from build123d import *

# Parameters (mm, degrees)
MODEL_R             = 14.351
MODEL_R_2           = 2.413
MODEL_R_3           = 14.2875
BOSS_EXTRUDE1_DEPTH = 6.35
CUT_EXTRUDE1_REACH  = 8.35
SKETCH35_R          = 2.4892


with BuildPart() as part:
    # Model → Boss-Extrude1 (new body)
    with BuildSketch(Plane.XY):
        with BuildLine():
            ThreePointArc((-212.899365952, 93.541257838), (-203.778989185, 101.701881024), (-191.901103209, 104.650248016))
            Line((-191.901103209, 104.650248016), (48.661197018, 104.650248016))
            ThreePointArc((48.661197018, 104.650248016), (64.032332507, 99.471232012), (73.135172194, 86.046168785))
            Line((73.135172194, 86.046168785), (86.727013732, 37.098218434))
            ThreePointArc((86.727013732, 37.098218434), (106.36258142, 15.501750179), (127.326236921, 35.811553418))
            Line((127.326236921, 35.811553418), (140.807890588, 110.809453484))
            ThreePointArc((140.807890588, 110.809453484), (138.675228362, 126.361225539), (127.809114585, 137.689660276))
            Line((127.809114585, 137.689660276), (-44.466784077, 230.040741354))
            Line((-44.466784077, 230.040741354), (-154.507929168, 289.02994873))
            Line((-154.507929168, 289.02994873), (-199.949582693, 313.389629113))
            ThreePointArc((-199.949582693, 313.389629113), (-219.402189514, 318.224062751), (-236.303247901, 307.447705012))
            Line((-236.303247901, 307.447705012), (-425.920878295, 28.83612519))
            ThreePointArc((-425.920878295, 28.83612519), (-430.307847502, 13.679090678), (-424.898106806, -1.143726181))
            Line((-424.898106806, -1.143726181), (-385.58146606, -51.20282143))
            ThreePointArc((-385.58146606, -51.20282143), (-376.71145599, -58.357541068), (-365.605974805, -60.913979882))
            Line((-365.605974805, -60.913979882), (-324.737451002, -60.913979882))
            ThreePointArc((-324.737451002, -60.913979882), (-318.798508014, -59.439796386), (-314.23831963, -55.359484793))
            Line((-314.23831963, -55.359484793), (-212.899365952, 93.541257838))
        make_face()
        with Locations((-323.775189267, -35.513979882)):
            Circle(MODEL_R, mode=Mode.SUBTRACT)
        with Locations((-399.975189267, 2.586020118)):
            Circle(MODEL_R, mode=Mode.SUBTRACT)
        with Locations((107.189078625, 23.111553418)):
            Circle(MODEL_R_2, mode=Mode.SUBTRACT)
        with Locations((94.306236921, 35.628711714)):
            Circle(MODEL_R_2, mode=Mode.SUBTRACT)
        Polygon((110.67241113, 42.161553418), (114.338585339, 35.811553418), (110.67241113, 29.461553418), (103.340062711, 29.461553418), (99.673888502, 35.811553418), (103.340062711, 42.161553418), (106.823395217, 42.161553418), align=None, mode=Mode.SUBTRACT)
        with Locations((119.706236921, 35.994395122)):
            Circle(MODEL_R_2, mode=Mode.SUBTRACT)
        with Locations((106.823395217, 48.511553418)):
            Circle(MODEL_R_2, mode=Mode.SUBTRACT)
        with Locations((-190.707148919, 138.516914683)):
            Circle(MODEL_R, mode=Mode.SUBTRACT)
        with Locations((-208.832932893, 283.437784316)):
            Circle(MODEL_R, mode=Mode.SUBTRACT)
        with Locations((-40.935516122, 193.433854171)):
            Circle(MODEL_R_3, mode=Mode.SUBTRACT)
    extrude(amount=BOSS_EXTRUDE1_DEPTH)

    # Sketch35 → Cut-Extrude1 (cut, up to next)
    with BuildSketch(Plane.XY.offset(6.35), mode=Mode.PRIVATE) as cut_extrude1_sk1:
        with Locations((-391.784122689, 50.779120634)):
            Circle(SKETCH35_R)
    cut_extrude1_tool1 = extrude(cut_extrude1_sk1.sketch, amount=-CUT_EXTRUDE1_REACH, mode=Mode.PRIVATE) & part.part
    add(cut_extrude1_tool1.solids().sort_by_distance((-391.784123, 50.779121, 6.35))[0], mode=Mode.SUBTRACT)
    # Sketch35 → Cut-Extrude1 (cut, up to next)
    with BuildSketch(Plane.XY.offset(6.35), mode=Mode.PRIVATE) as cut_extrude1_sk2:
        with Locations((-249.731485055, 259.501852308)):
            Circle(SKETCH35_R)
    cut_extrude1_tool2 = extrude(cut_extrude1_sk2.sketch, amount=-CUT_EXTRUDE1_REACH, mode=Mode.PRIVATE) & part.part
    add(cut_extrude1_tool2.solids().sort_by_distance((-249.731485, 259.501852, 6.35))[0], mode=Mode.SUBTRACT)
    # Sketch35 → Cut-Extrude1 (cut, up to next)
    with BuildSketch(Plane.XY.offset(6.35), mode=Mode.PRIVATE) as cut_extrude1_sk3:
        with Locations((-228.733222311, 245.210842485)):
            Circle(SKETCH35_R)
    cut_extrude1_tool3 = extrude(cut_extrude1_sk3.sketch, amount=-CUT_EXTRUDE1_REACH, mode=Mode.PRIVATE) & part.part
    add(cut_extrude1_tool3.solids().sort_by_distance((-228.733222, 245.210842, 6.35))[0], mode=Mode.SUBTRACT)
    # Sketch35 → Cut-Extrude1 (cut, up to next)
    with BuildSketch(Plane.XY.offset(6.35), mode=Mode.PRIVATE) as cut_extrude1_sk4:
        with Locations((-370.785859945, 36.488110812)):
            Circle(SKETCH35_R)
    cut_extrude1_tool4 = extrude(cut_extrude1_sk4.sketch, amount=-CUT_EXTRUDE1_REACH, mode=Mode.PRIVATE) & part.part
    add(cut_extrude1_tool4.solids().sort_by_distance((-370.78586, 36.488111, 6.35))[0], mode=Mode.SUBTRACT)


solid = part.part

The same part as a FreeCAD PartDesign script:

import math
import FreeCAD as App
import Part
import Sketcher
from FreeCAD import Vector
Q = App.Units.Quantity


def add_polygon(sketch, points):
    """Adds a closed chain of lines whose ends are joined by coincident constraints."""
    first, n = sketch.GeometryCount, len(points)
    for a, b in zip(points, points[1:] + points[:1]):
        sketch.addGeometry(Part.LineSegment(App.Vector(*a, 0), App.Vector(*b, 0)), False)
    for i in range(n):
        sketch.addConstraint(Sketcher.Constraint("Coincident", first + i, 2, first + (i + 1) % n, 1))

doc = App.newDocument("Part")
body = doc.addObject("PartDesign::Body", "Body")

# Sketch on XY plane
sketch1 = body.newObject("Sketcher::SketchObject", "Sketch")
sketch1.AttachmentSupport = (doc.getObject("XY_Plane"), [""])
sketch1.MapMode = "FlatFace"
sketch1.addGeometry(Part.ArcOfCircle(Part.Circle(Vector(-191.901103, 79.250248, 0), Vector(0, 0, 1), 25.4), math.radians(90), math.radians(145.761557)), False)  # 0
sketch1.addGeometry(Part.LineSegment(Vector(-191.901103, 104.650248, 0), Vector(48.661197, 104.650248, 0)), False)  # 1
sketch1.addGeometry(Part.ArcOfCircle(Part.Circle(Vector(48.661197, 79.250248, 0), Vector(0, 0, 1), 25.4), math.radians(15.518882), math.radians(90)), False)  # 2
sketch1.addGeometry(Part.LineSegment(Vector(73.135172, 86.046169, 0), Vector(86.727014, 37.098218, 0)), False)  # 3
sketch1.addGeometry(Part.ArcOfCircle(Part.Circle(Vector(107.006237, 35.811553, 0), Vector(0, 0, 1), 20.32), math.radians(176.369595), math.radians(360)), False)  # 4
sketch1.addGeometry(Part.LineSegment(Vector(127.326237, 35.811553, 0), Vector(140.807891, 110.809453, 0)), False)  # 5
sketch1.addGeometry(Part.ArcOfCircle(Part.Circle(Vector(115.808591, 115.303338, 0), Vector(0, 0, 1), 25.4), math.radians(-10.190677), math.radians(61.805798)), False)  # 6
sketch1.addGeometry(Part.LineSegment(Vector(127.809115, 137.68966, 0), Vector(-44.466784, 230.040741, 0)), False)  # 7
sketch1.addGeometry(Part.LineSegment(Vector(-44.466784, 230.040741, 0), Vector(-154.507929, 289.029949, 0)), False)  # 8
sketch1.addGeometry(Part.LineSegment(Vector(-154.507929, 289.029949, 0), Vector(-199.949583, 313.389629, 0)), False)  # 9
sketch1.addGeometry(Part.ArcOfCircle(Part.Circle(Vector(-215.304985, 293.156695, 0), Vector(0, 0, 1), 25.4), math.radians(52.804007), math.radians(145.761557)), False)  # 10
sketch1.addGeometry(Part.LineSegment(Vector(-236.303248, 307.447705, 0), Vector(-425.920878, 28.836125, 0)), False)  # 11
sketch1.addGeometry(Part.ArcOfCircle(Part.Circle(Vector(-404.922616, 14.545115, 0), Vector(0, 0, 1), 25.4), math.radians(145.761557), math.radians(218.146252)), False)  # 12
sketch1.addGeometry(Part.LineSegment(Vector(-424.898107, -1.143726, 0), Vector(-385.581466, -51.202821, 0)), False)  # 13
sketch1.addGeometry(Part.ArcOfCircle(Part.Circle(Vector(-365.605975, -35.51398, 0), Vector(0, 0, 1), 25.4), math.radians(-141.853748), math.radians(-90)), False)  # 14
sketch1.addGeometry(Part.LineSegment(Vector(-365.605975, -60.91398, 0), Vector(-324.737451, -60.91398, 0)), False)  # 15
sketch1.addGeometry(Part.ArcOfCircle(Part.Circle(Vector(-324.737451, -48.21398, 0), Vector(0, 0, 1), 12.7), math.radians(-90), math.radians(-34.238443)), False)  # 16
sketch1.addGeometry(Part.LineSegment(Vector(-314.23832, -55.359485, 0), Vector(-212.899366, 93.541258, 0)), False)  # 17
sketch1.addGeometry(Part.Circle(Vector(-323.775189, -35.51398, 0), Vector(0, 0, 1), 14.351), False)  # 18
sketch1.addGeometry(Part.Circle(Vector(-399.975189, 2.58602, 0), Vector(0, 0, 1), 14.351), False)  # 19
sketch1.addGeometry(Part.Circle(Vector(107.189079, 23.111553, 0), Vector(0, 0, 1), 2.413), False)  # 20
sketch1.addGeometry(Part.Circle(Vector(94.306237, 35.628712, 0), Vector(0, 0, 1), 2.413), False)  # 21
add_polygon(sketch1, [(103.340063, 42.161553), (110.672411, 42.161553), (114.338585, 35.811553), (110.672411, 29.461553), (103.340063, 29.461553), (99.673889, 35.811553)])  # lines 22-27
sketch1.addGeometry(Part.Circle(Vector(119.706237, 35.994395, 0), Vector(0, 0, 1), 2.413), False)  # 28
sketch1.addGeometry(Part.Circle(Vector(106.823395, 48.511553, 0), Vector(0, 0, 1), 2.413), False)  # 29
sketch1.addGeometry(Part.Circle(Vector(-190.707149, 138.516915, 0), Vector(0, 0, 1), 14.351), False)  # 30
sketch1.addGeometry(Part.Circle(Vector(-208.832933, 283.437784, 0), Vector(0, 0, 1), 14.351), False)  # 31
sketch1.addGeometry(Part.Circle(Vector(-40.935516, 193.433854, 0), Vector(0, 0, 1), 14.2875), False)  # 32
sketch1.addConstraint(Sketcher.Constraint("Tangent", 0, 1, 1, 1))
sketch1.addConstraint(Sketcher.Constraint("Tangent", 1, 2, 2, 2))
sketch1.addConstraint(Sketcher.Constraint("Tangent", 2, 1, 3, 1))
sketch1.addConstraint(Sketcher.Constraint("Coincident", 3, 2, 4, 1))
sketch1.addConstraint(Sketcher.Constraint("Coincident", 4, 2, 5, 1))
sketch1.addConstraint(Sketcher.Constraint("Tangent", 5, 2, 6, 1))
sketch1.addConstraint(Sketcher.Constraint("Tangent", 6, 2, 7, 1))
sketch1.addConstraint(Sketcher.Constraint("Coincident", 7, 2, 8, 1))
sketch1.addConstraint(Sketcher.Constraint("Coincident", 8, 2, 9, 1))
sketch1.addConstraint(Sketcher.Constraint("Coincident", 9, 2, 10, 1))
sketch1.addConstraint(Sketcher.Constraint("Tangent", 10, 2, 11, 1))
sketch1.addConstraint(Sketcher.Constraint("Tangent", 11, 2, 12, 1))
sketch1.addConstraint(Sketcher.Constraint("Tangent", 12, 2, 13, 1))
sketch1.addConstraint(Sketcher.Constraint("Tangent", 13, 2, 14, 1))
sketch1.addConstraint(Sketcher.Constraint("Tangent", 14, 2, 15, 1))
sketch1.addConstraint(Sketcher.Constraint("Tangent", 15, 2, 16, 1))
sketch1.addConstraint(Sketcher.Constraint("Tangent", 16, 2, 17, 1))
sketch1.addConstraint(Sketcher.Constraint("Tangent", 17, 2, 0, 2))
sketch1.addConstraint(Sketcher.Constraint("Horizontal", 1))
sketch1.addConstraint(Sketcher.Constraint("Horizontal", 15))
sketch1.addConstraint(Sketcher.Constraint("Horizontal", 22))
sketch1.addConstraint(Sketcher.Constraint("Horizontal", 25))
sketch1.addConstraint(Sketcher.Constraint("Equal", 0, 2))
sketch1.addConstraint(Sketcher.Constraint("Equal", 2, 6))
sketch1.addConstraint(Sketcher.Constraint("Equal", 6, 10))
sketch1.addConstraint(Sketcher.Constraint("Equal", 10, 12))
sketch1.addConstraint(Sketcher.Constraint("Equal", 12, 14))
sketch1.addConstraint(Sketcher.Constraint("Equal", 18, 19))
sketch1.addConstraint(Sketcher.Constraint("Equal", 20, 21))
sketch1.addConstraint(Sketcher.Constraint("Equal", 21, 28))
sketch1.addConstraint(Sketcher.Constraint("Equal", 28, 29))
sketch1.addConstraint(Sketcher.Constraint("Equal", 19, 30))
sketch1.addConstraint(Sketcher.Constraint("Equal", 30, 31))
sketch1.addConstraint(Sketcher.Constraint("Parallel", 7, 8))
sketch1.addConstraint(Sketcher.Constraint("Parallel", 8, 9))
sketch1.addConstraint(Sketcher.Constraint("Parallel", 11, 17))
sketch1.addConstraint(Sketcher.Constraint("Parallel", 23, 26))
sketch1.addConstraint(Sketcher.Constraint("Parallel", 24, 27))
sketch1.addConstraint(Sketcher.Constraint("Horizontal", 14, 3, 18, 3))
sketch1.addConstraint(Sketcher.Constraint("Horizontal", 4, 2, 23, 2))
sketch1.addConstraint(Sketcher.Constraint("Horizontal", 23, 2, 26, 2))
sketch1.addConstraint(Sketcher.Constraint("Vertical", 22, 2, 24, 2))
sketch1.addConstraint(Sketcher.Constraint("Vertical", 25, 2, 27, 2))
sketch1.addConstraint(Sketcher.Constraint("Radius", 0, Q("1 in")))
sketch1.addConstraint(Sketcher.Constraint("Radius", 4, Q("0.8 in")))
sketch1.addConstraint(Sketcher.Constraint("Radius", 16, Q("0.5 in")))
sketch1.addConstraint(Sketcher.Constraint("Diameter", 18, Q("1.13 in")))
sketch1.addConstraint(Sketcher.Constraint("Diameter", 20, Q("0.19 in")))
sketch1.addConstraint(Sketcher.Constraint("Distance", 3, Q("2 in")))
sketch1.addConstraint(Sketcher.Constraint("Distance", 5, Q("3 in")))
sketch1.addConstraint(Sketcher.Constraint("Diameter", 32, Q("1.125 in")))
sketch1.addConstraint(Sketcher.Constraint("Angle", 23, Q("-60 deg")))
sketch1.addConstraint(Sketcher.Constraint("DistanceX", 19, 3, 18, 3, Q("3 in")))
sketch1.addConstraint(Sketcher.Constraint("DistanceY", 16, 3, 19, 3, Q("2 in")))
sketch1.addConstraint(Sketcher.Constraint("DistanceX", 21, 3, 28, 3, Q("1 in")))
sketch1.addConstraint(Sketcher.Constraint("DistanceY", 20, 3, 29, 3, Q("1 in")))
sketch1.addConstraint(Sketcher.Constraint("DistanceY", 20, 3, 4, 3, Q("0.5 in")))
sketch1.addConstraint(Sketcher.Constraint("DistanceX", 21, 3, 4, 3, Q("0.5 in")))
sketch1.addConstraint(Sketcher.Constraint("DistanceY", 20, 3, 4, 2, Q("0.5 in")))
sketch1.addConstraint(Sketcher.Constraint("DistanceY", 24, 2, 22, 2, Q("0.5 in")))
sketch1.addConstraint(Sketcher.Constraint("DistanceX", 1, 1, 1, 2, 240.5623))
sketch1.addConstraint(Sketcher.Constraint("DistanceX", 22, 1, 22, 2, 7.332348))
sketch1.addConstraint(Sketcher.Constraint("DistanceX", 2, 3, 29, 3, 58.162198))
sketch1.addConstraint(Sketcher.Constraint("DistanceX", 6, 3, 5, 2, 24.9993))
sketch1.addConstraint(Sketcher.Constraint("DistanceX", 9, 2, 7, 2, 155.482799))
sketch1.addConstraint(Sketcher.Constraint("DistanceX", 10, 2, 30, 3, 45.596099))
sketch1.addConstraint(Sketcher.Constraint("Distance", 7, 195.467919))
sketch1.addConstraint(Sketcher.Constraint("Distance", 9, 51.559072))
sketch1.addConstraint(Sketcher.Constraint("Distance", 11, 337.015219))
sketch1.addConstraint(Sketcher.Constraint("DistanceX", 15, 1, 15, 2, 40.868524))
sketch1.addConstraint(Sketcher.Constraint("DistanceY", -1, 1, 0, 3, 79.250248))
sketch1.addConstraint(Sketcher.Constraint("DistanceX", -1, 1, 6, 3, 115.808591))
sketch1.addConstraint(Sketcher.Constraint("DistanceY", -1, 1, 6, 3, 115.303338))
sketch1.addConstraint(Sketcher.Constraint("DistanceY", 14, 3, -1, 1, 35.51398))
sketch1.addConstraint(Sketcher.Constraint("DistanceX", 16, 3, -1, 1, 324.737451))
sketch1.addConstraint(Sketcher.Constraint("DistanceX", 18, 3, -1, 1, 323.775189))
sketch1.addConstraint(Sketcher.Constraint("DistanceX", -1, 1, 20, 3, 107.189079))
sketch1.addConstraint(Sketcher.Constraint("DistanceY", -1, 1, 21, 3, 35.628712))
sketch1.addConstraint(Sketcher.Constraint("DistanceX", 30, 3, -1, 1, 190.707149))
sketch1.addConstraint(Sketcher.Constraint("DistanceY", -1, 1, 2, 1, 86.046169))
sketch1.addConstraint(Sketcher.Constraint("DistanceY", -1, 1, 7, 2, 230.040741))
sketch1.addConstraint(Sketcher.Constraint("DistanceX", -1, 1, 22, 2, 110.672411))
sketch1.addConstraint(Sketcher.Constraint("DistanceY", 4, 3, 28, 3, 0.182842))
sketch1.addConstraint(Sketcher.Constraint("DistanceY", 30, 3, 10, 3, 154.639781))
sketch1.addConstraint(Sketcher.Constraint("DistanceY", 31, 3, 10, 3, 9.718911))
sketch1.addConstraint(Sketcher.Constraint("DistanceX", 31, 3, 0, 3, 16.93183))
sketch1.addConstraint(Sketcher.Constraint("DistanceY", 30, 3, 32, 3, 54.916939))
sketch1.addConstraint(Sketcher.Constraint("DistanceX", 32, 3, -1, 1, 40.935516))
pad1 = body.newObject("PartDesign::Pad", "Pad")
pad1.Profile = sketch1
pad1.Length = Q("0.25 in")

# Sketch on XY plane
sketch2 = body.newObject("Sketcher::SketchObject", "Sketch001")
sketch2.AttachmentSupport = (doc.getObject("XY_Plane"), [""])
sketch2.MapMode = "FlatFace"
sketch2.AttachmentOffset = App.Placement(Vector(0, 0, 0.25 * 25.4), App.Rotation())
sketch2.addGeometry(Part.Circle(Vector(-391.784123, 50.779121, 0), Vector(0, 0, 1), 2.4892), False)
sketch2.addConstraint(Sketcher.Constraint("Diameter", 0, Q("0.196 in")))
sketch2.addConstraint(Sketcher.Constraint("DistanceY", -1, 1, 0, 3, 50.779121))
sketch2.addConstraint(Sketcher.Constraint("DistanceX", 0, 3, -1, 1, 391.784123))
pocket1 = body.newObject("PartDesign::Pocket", "Pocket")
pocket1.Profile = sketch2
pocket1.Type = "UpToFirst"

# Sketch on XY plane
sketch3 = body.newObject("Sketcher::SketchObject", "Sketch002")
sketch3.AttachmentSupport = (doc.getObject("XY_Plane"), [""])
sketch3.MapMode = "FlatFace"
sketch3.AttachmentOffset = App.Placement(Vector(0, 0, 0.25 * 25.4), App.Rotation())
sketch3.addGeometry(Part.Circle(Vector(-249.731485, 259.501852, 0), Vector(0, 0, 1), 2.4892), False)
sketch3.addConstraint(Sketcher.Constraint("Diameter", 0, Q("0.196 in")))
sketch3.addConstraint(Sketcher.Constraint("DistanceX", 0, 3, -1, 1, 249.731485))
sketch3.addConstraint(Sketcher.Constraint("DistanceY", -1, 1, 0, 3, 259.501852))
pocket2 = body.newObject("PartDesign::Pocket", "Pocket001")
pocket2.Profile = sketch3
pocket2.Type = "UpToFirst"

# Sketch on XY plane
sketch4 = body.newObject("Sketcher::SketchObject", "Sketch003")
sketch4.AttachmentSupport = (doc.getObject("XY_Plane"), [""])
sketch4.MapMode = "FlatFace"
sketch4.AttachmentOffset = App.Placement(Vector(0, 0, 0.25 * 25.4), App.Rotation())
sketch4.addGeometry(Part.Circle(Vector(-228.733222, 245.210842, 0), Vector(0, 0, 1), 2.4892), False)
sketch4.addConstraint(Sketcher.Constraint("Diameter", 0, Q("0.196 in")))
sketch4.addConstraint(Sketcher.Constraint("DistanceX", 0, 3, -1, 1, 228.733222))
sketch4.addConstraint(Sketcher.Constraint("DistanceY", -1, 1, 0, 3, 245.210842))
pocket3 = body.newObject("PartDesign::Pocket", "Pocket002")
pocket3.Profile = sketch4
pocket3.Type = "UpToFirst"

# Sketch on XY plane
sketch5 = body.newObject("Sketcher::SketchObject", "Sketch004")
sketch5.AttachmentSupport = (doc.getObject("XY_Plane"), [""])
sketch5.MapMode = "FlatFace"
sketch5.AttachmentOffset = App.Placement(Vector(0, 0, 0.25 * 25.4), App.Rotation())
sketch5.addGeometry(Part.Circle(Vector(-370.78586, 36.488111, 0), Vector(0, 0, 1), 2.4892), False)
sketch5.addConstraint(Sketcher.Constraint("Diameter", 0, Q("0.196 in")))
sketch5.addConstraint(Sketcher.Constraint("DistanceX", 0, 3, -1, 1, 370.78586))
sketch5.addConstraint(Sketcher.Constraint("DistanceY", -1, 1, 0, 3, 36.488111))
pocket4 = body.newObject("PartDesign::Pocket", "Pocket003")
pocket4.Profile = sketch5
pocket4.Type = "UpToFirst"

doc.recompute()
